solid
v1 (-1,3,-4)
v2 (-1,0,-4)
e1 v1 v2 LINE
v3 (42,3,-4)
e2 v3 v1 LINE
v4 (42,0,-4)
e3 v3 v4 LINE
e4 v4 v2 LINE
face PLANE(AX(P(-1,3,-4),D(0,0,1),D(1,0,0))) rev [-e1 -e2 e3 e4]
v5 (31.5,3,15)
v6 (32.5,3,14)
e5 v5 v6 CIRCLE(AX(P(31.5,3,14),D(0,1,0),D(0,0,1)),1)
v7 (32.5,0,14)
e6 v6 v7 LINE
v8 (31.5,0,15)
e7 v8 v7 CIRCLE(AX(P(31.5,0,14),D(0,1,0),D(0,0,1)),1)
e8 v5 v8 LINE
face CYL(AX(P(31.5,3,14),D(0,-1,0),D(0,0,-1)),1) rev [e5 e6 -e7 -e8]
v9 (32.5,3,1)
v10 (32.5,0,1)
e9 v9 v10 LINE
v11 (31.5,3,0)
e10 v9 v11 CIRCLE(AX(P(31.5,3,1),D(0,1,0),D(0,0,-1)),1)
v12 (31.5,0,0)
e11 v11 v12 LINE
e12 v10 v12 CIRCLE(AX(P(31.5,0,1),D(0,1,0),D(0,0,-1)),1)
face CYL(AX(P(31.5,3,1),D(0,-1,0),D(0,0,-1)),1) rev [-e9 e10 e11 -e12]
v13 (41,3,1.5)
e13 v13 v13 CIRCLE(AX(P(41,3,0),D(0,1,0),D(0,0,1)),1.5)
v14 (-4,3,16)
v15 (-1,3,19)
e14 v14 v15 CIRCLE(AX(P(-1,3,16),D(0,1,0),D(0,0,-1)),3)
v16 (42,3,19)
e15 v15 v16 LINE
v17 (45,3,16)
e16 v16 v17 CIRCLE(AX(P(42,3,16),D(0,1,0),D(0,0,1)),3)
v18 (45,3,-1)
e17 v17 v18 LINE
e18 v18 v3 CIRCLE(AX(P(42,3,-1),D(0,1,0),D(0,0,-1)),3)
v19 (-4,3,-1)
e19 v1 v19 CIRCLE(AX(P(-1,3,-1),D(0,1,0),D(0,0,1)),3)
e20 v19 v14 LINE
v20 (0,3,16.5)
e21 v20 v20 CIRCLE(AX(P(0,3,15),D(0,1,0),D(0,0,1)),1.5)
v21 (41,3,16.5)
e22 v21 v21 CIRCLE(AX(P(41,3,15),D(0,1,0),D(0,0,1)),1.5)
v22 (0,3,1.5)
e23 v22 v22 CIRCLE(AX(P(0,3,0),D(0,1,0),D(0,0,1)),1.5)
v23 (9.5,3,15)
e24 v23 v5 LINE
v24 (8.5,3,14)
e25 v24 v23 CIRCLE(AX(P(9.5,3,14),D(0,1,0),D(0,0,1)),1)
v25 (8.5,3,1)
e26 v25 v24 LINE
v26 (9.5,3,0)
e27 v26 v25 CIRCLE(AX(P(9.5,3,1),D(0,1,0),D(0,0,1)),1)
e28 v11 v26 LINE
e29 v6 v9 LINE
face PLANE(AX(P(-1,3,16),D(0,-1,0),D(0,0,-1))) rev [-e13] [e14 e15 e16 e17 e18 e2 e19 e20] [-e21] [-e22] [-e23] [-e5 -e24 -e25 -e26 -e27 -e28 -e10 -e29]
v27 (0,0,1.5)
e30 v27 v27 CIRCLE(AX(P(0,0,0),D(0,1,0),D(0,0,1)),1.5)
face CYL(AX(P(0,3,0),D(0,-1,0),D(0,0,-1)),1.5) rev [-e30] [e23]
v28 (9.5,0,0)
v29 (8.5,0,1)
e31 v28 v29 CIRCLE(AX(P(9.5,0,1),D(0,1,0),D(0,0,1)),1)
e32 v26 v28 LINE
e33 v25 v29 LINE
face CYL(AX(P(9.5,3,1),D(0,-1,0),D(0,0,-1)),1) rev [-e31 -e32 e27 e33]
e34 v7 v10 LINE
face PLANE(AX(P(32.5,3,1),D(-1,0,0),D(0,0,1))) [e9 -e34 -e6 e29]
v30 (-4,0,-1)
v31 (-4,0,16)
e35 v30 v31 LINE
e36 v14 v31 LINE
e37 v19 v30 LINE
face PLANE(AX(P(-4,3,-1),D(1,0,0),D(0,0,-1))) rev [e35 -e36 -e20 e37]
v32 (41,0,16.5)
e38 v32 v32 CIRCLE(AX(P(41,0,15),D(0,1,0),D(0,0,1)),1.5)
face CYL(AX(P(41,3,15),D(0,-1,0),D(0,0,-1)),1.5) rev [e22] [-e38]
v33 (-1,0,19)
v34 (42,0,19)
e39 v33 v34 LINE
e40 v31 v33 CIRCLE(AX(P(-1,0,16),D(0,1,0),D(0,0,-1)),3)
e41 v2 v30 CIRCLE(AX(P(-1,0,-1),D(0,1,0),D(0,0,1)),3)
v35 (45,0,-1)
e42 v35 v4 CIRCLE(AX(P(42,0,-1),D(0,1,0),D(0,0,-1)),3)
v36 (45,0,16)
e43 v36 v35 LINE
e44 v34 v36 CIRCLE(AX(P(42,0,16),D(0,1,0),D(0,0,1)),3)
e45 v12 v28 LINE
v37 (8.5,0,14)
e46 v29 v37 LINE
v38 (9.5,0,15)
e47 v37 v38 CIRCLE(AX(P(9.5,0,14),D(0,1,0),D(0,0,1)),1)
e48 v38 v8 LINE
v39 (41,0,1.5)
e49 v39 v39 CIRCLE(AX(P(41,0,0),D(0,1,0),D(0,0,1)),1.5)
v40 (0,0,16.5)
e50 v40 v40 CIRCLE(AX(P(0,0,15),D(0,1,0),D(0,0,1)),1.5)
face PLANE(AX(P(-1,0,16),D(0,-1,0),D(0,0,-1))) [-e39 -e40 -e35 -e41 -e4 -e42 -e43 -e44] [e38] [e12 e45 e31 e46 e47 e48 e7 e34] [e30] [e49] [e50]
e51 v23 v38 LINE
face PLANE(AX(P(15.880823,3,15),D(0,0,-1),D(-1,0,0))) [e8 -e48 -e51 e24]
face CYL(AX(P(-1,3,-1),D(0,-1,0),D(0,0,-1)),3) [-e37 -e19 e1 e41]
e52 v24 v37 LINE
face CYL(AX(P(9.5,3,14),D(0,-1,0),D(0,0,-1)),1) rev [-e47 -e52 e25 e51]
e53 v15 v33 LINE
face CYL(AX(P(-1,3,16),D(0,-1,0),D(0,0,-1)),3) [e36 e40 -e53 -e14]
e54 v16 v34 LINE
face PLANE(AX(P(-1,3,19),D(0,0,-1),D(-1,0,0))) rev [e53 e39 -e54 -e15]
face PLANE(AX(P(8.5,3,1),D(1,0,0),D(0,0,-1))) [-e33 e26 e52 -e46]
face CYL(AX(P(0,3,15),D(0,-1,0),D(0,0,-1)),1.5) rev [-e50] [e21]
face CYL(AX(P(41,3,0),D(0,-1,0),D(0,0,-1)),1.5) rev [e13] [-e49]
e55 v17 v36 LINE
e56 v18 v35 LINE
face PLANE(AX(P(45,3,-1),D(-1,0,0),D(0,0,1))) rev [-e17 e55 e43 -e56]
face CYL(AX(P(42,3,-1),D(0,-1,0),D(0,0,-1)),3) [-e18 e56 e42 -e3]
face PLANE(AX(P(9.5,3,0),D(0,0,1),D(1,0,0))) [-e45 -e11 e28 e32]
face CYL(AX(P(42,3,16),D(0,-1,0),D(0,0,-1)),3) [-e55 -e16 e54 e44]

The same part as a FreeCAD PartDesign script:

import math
import FreeCAD as App
import Part
import Sketcher
from FreeCAD import Vector
Q = App.Units.Quantity

doc = App.newDocument("Part")
body = doc.addObject("PartDesign::Body", "Body")

sketch1 = body.newObject("Sketcher::SketchObject", "Sketch")
sketch1.AttachmentSupport = (doc.getObject("XZ_Plane"), [""])
sketch1.MapMode = "FlatFace"
sketch1.addGeometry([
    Part.LineSegment(Vector(-4, -1, 0), Vector(-4, 16, 0)),
    Part.ArcOfCircle(Part.Circle(Vector(-1, 16, 0), Vector(0, 0, 1), 3), math.radians(90), math.radians(180)),
    Part.LineSegment(Vector(-1, 19, 0), Vector(42, 19, 0)),
    Part.ArcOfCircle(Part.Circle(Vector(42, 16, 0), Vector(0, 0, 1), 3), math.radians(0), math.radians(90)),
    Part.LineSegment(Vector(45, 16, 0), Vector(45, -1, 0)),
    Part.ArcOfCircle(Part.Circle(Vector(42, -1, 0), Vector(0, 0, 1), 3), math.radians(-90), math.radians(0)),
    Part.LineSegment(Vector(42, -4, 0), Vector(-1, -4, 0)),
    Part.ArcOfCircle(Part.Circle(Vector(-1, -1, 0), Vector(0, 0, 1), 3), math.radians(180), math.radians(270)),
    Part.Circle(Vector(0, 15, 0), Vector(0, 0, 1), 1.5),
    Part.Circle(Vector(41, 15, 0), Vector(0, 0, 1), 1.5),
    Part.Circle(Vector(0, 0, 0), Vector(0, 0, 1), 1.5),
    Part.ArcOfCircle(Part.Circle(Vector(9.5, 1, 0), Vector(0, 0, 1), 1), math.radians(-180), math.radians(-90)),
    Part.LineSegment(Vector(9.5, 0, 0), Vector(31.5, 0, 0)),
    Part.ArcOfCircle(Part.Circle(Vector(31.5, 1, 0), Vector(0, 0, 1), 1), math.radians(-90), math.radians(0)),
    Part.LineSegment(Vector(32.5, 1, 0), Vector(32.5, 14, 0)),
    Part.ArcOfCircle(Part.Circle(Vector(31.5, 14, 0), Vector(0, 0, 1), 1), math.radians(0), math.radians(90)),
    Part.LineSegment(Vector(31.5, 15, 0), Vector(9.5, 15, 0)),
    Part.ArcOfCircle(Part.Circle(Vector(9.5, 14, 0), Vector(0, 0, 1), 1), math.radians(90), math.radians(180)),
    Part.LineSegment(Vector(8.5, 14, 0), Vector(8.5, 1, 0)),
    Part.Circle(Vector(41, 0, 0), Vector(0, 0, 1), 1.5),
], False)
sketch1.addConstraint([
    Sketcher.Constraint("Tangent", 0, 2, 1, 2),
    Sketcher.Constraint("Tangent", 1, 1, 2, 1),
    Sketcher.Constraint("Tangent", 2, 2, 3, 2),
    Sketcher.Constraint("Tangent", 3, 1, 4, 1),
    Sketcher.Constraint("Tangent", 4, 2, 5, 2),
    Sketcher.Constraint("Tangent", 5, 1, 6, 1),
    Sketcher.Constraint("Tangent", 6, 2, 7, 2),
    Sketcher.Constraint("Tangent", 7, 1, 0, 1),
    Sketcher.Constraint("Tangent", 11, 2, 12, 1),
    Sketcher.Constraint("Tangent", 12, 2, 13, 1),
    Sketcher.Constraint("Tangent", 13, 2, 14, 1),
    Sketcher.Constraint("Tangent", 14, 2, 15, 1),
    Sketcher.Constraint("Tangent", 15, 2, 16, 1),
    Sketcher.Constraint("Tangent", 16, 2, 17, 1),
    Sketcher.Constraint("Tangent", 17, 2, 18, 1),
    Sketcher.Constraint("Tangent", 18, 2, 11, 1),
    Sketcher.Constraint("Vertical", 0),
    Sketcher.Constraint("Horizontal", 2),
    Sketcher.Constraint("Vertical", 4),
    Sketcher.Constraint("Horizontal", 6),
    Sketcher.Constraint("Horizontal", 12),
    Sketcher.Constraint("Vertical", 14),
    Sketcher.Constraint("Horizontal", 16),
    Sketcher.Constraint("Vertical", 18),
    Sketcher.Constraint("Coincident", 10, 3, -1, 1),
    Sketcher.Constraint("Equal", 1, 3),
    Sketcher.Constraint("Equal", 3, 5),
    Sketcher.Constraint("Equal", 5, 7),
    Sketcher.Constraint("Equal", 8, 9),
    Sketcher.Constraint("Equal", 9, 10),
    Sketcher.Constraint("Equal", 11, 13),
    Sketcher.Constraint("Equal", 13, 15),
    Sketcher.Constraint("Equal", 15, 17),
    Sketcher.Constraint("Equal", 10, 19),
    Sketcher.Constraint("PointOnObject", 8, 3, -2),
    Sketcher.Constraint("PointOnObject", 19, 3, -1),
    Sketcher.Constraint("PointOnObject", 11, 2, -1),
    Sketcher.Constraint("Horizontal", 8, 3, 9, 3),
    Sketcher.Constraint("Horizontal", 9, 3, 15, 2),
    Sketcher.Constraint("Vertical", 9, 3, 19, 3),
    Sketcher.Constraint("Diameter", 8, Q("3 mm")),
    Sketcher.Constraint("Radius", 1, Q("3 mm")),
    Sketcher.Constraint("Radius", 11, Q("1 mm")),
    Sketcher.Constraint("DistanceX", 2, 1, 2, 2, Q("43 mm")),
    Sketcher.Constraint("DistanceX", 12, 1, 12, 2, Q("22 mm")),
    Sketcher.Constraint("DistanceY", 0, 1, 0, 2, Q("17 mm")),
    Sketcher.Constraint("DistanceY", 14, 1, 14, 2, Q("13 mm")),
    Sketcher.Constraint("DistanceX", 1, 3, -1, 1, Q("1 mm")),
    Sketcher.Constraint("DistanceY", -1, 1, 1, 3, Q("16 mm")),
    Sketcher.Constraint("DistanceX", -1, 1, 9, 3, Q("41 mm")),
    Sketcher.Constraint("DistanceX", -1, 1, 11, 3, Q("9.5 mm")),
])
pad1 = body.newObject("PartDesign::Pad", "Pad")
pad1.Profile = sketch1
pad1.Length = 3
pad1.Reversed = True

doc.recompute()
